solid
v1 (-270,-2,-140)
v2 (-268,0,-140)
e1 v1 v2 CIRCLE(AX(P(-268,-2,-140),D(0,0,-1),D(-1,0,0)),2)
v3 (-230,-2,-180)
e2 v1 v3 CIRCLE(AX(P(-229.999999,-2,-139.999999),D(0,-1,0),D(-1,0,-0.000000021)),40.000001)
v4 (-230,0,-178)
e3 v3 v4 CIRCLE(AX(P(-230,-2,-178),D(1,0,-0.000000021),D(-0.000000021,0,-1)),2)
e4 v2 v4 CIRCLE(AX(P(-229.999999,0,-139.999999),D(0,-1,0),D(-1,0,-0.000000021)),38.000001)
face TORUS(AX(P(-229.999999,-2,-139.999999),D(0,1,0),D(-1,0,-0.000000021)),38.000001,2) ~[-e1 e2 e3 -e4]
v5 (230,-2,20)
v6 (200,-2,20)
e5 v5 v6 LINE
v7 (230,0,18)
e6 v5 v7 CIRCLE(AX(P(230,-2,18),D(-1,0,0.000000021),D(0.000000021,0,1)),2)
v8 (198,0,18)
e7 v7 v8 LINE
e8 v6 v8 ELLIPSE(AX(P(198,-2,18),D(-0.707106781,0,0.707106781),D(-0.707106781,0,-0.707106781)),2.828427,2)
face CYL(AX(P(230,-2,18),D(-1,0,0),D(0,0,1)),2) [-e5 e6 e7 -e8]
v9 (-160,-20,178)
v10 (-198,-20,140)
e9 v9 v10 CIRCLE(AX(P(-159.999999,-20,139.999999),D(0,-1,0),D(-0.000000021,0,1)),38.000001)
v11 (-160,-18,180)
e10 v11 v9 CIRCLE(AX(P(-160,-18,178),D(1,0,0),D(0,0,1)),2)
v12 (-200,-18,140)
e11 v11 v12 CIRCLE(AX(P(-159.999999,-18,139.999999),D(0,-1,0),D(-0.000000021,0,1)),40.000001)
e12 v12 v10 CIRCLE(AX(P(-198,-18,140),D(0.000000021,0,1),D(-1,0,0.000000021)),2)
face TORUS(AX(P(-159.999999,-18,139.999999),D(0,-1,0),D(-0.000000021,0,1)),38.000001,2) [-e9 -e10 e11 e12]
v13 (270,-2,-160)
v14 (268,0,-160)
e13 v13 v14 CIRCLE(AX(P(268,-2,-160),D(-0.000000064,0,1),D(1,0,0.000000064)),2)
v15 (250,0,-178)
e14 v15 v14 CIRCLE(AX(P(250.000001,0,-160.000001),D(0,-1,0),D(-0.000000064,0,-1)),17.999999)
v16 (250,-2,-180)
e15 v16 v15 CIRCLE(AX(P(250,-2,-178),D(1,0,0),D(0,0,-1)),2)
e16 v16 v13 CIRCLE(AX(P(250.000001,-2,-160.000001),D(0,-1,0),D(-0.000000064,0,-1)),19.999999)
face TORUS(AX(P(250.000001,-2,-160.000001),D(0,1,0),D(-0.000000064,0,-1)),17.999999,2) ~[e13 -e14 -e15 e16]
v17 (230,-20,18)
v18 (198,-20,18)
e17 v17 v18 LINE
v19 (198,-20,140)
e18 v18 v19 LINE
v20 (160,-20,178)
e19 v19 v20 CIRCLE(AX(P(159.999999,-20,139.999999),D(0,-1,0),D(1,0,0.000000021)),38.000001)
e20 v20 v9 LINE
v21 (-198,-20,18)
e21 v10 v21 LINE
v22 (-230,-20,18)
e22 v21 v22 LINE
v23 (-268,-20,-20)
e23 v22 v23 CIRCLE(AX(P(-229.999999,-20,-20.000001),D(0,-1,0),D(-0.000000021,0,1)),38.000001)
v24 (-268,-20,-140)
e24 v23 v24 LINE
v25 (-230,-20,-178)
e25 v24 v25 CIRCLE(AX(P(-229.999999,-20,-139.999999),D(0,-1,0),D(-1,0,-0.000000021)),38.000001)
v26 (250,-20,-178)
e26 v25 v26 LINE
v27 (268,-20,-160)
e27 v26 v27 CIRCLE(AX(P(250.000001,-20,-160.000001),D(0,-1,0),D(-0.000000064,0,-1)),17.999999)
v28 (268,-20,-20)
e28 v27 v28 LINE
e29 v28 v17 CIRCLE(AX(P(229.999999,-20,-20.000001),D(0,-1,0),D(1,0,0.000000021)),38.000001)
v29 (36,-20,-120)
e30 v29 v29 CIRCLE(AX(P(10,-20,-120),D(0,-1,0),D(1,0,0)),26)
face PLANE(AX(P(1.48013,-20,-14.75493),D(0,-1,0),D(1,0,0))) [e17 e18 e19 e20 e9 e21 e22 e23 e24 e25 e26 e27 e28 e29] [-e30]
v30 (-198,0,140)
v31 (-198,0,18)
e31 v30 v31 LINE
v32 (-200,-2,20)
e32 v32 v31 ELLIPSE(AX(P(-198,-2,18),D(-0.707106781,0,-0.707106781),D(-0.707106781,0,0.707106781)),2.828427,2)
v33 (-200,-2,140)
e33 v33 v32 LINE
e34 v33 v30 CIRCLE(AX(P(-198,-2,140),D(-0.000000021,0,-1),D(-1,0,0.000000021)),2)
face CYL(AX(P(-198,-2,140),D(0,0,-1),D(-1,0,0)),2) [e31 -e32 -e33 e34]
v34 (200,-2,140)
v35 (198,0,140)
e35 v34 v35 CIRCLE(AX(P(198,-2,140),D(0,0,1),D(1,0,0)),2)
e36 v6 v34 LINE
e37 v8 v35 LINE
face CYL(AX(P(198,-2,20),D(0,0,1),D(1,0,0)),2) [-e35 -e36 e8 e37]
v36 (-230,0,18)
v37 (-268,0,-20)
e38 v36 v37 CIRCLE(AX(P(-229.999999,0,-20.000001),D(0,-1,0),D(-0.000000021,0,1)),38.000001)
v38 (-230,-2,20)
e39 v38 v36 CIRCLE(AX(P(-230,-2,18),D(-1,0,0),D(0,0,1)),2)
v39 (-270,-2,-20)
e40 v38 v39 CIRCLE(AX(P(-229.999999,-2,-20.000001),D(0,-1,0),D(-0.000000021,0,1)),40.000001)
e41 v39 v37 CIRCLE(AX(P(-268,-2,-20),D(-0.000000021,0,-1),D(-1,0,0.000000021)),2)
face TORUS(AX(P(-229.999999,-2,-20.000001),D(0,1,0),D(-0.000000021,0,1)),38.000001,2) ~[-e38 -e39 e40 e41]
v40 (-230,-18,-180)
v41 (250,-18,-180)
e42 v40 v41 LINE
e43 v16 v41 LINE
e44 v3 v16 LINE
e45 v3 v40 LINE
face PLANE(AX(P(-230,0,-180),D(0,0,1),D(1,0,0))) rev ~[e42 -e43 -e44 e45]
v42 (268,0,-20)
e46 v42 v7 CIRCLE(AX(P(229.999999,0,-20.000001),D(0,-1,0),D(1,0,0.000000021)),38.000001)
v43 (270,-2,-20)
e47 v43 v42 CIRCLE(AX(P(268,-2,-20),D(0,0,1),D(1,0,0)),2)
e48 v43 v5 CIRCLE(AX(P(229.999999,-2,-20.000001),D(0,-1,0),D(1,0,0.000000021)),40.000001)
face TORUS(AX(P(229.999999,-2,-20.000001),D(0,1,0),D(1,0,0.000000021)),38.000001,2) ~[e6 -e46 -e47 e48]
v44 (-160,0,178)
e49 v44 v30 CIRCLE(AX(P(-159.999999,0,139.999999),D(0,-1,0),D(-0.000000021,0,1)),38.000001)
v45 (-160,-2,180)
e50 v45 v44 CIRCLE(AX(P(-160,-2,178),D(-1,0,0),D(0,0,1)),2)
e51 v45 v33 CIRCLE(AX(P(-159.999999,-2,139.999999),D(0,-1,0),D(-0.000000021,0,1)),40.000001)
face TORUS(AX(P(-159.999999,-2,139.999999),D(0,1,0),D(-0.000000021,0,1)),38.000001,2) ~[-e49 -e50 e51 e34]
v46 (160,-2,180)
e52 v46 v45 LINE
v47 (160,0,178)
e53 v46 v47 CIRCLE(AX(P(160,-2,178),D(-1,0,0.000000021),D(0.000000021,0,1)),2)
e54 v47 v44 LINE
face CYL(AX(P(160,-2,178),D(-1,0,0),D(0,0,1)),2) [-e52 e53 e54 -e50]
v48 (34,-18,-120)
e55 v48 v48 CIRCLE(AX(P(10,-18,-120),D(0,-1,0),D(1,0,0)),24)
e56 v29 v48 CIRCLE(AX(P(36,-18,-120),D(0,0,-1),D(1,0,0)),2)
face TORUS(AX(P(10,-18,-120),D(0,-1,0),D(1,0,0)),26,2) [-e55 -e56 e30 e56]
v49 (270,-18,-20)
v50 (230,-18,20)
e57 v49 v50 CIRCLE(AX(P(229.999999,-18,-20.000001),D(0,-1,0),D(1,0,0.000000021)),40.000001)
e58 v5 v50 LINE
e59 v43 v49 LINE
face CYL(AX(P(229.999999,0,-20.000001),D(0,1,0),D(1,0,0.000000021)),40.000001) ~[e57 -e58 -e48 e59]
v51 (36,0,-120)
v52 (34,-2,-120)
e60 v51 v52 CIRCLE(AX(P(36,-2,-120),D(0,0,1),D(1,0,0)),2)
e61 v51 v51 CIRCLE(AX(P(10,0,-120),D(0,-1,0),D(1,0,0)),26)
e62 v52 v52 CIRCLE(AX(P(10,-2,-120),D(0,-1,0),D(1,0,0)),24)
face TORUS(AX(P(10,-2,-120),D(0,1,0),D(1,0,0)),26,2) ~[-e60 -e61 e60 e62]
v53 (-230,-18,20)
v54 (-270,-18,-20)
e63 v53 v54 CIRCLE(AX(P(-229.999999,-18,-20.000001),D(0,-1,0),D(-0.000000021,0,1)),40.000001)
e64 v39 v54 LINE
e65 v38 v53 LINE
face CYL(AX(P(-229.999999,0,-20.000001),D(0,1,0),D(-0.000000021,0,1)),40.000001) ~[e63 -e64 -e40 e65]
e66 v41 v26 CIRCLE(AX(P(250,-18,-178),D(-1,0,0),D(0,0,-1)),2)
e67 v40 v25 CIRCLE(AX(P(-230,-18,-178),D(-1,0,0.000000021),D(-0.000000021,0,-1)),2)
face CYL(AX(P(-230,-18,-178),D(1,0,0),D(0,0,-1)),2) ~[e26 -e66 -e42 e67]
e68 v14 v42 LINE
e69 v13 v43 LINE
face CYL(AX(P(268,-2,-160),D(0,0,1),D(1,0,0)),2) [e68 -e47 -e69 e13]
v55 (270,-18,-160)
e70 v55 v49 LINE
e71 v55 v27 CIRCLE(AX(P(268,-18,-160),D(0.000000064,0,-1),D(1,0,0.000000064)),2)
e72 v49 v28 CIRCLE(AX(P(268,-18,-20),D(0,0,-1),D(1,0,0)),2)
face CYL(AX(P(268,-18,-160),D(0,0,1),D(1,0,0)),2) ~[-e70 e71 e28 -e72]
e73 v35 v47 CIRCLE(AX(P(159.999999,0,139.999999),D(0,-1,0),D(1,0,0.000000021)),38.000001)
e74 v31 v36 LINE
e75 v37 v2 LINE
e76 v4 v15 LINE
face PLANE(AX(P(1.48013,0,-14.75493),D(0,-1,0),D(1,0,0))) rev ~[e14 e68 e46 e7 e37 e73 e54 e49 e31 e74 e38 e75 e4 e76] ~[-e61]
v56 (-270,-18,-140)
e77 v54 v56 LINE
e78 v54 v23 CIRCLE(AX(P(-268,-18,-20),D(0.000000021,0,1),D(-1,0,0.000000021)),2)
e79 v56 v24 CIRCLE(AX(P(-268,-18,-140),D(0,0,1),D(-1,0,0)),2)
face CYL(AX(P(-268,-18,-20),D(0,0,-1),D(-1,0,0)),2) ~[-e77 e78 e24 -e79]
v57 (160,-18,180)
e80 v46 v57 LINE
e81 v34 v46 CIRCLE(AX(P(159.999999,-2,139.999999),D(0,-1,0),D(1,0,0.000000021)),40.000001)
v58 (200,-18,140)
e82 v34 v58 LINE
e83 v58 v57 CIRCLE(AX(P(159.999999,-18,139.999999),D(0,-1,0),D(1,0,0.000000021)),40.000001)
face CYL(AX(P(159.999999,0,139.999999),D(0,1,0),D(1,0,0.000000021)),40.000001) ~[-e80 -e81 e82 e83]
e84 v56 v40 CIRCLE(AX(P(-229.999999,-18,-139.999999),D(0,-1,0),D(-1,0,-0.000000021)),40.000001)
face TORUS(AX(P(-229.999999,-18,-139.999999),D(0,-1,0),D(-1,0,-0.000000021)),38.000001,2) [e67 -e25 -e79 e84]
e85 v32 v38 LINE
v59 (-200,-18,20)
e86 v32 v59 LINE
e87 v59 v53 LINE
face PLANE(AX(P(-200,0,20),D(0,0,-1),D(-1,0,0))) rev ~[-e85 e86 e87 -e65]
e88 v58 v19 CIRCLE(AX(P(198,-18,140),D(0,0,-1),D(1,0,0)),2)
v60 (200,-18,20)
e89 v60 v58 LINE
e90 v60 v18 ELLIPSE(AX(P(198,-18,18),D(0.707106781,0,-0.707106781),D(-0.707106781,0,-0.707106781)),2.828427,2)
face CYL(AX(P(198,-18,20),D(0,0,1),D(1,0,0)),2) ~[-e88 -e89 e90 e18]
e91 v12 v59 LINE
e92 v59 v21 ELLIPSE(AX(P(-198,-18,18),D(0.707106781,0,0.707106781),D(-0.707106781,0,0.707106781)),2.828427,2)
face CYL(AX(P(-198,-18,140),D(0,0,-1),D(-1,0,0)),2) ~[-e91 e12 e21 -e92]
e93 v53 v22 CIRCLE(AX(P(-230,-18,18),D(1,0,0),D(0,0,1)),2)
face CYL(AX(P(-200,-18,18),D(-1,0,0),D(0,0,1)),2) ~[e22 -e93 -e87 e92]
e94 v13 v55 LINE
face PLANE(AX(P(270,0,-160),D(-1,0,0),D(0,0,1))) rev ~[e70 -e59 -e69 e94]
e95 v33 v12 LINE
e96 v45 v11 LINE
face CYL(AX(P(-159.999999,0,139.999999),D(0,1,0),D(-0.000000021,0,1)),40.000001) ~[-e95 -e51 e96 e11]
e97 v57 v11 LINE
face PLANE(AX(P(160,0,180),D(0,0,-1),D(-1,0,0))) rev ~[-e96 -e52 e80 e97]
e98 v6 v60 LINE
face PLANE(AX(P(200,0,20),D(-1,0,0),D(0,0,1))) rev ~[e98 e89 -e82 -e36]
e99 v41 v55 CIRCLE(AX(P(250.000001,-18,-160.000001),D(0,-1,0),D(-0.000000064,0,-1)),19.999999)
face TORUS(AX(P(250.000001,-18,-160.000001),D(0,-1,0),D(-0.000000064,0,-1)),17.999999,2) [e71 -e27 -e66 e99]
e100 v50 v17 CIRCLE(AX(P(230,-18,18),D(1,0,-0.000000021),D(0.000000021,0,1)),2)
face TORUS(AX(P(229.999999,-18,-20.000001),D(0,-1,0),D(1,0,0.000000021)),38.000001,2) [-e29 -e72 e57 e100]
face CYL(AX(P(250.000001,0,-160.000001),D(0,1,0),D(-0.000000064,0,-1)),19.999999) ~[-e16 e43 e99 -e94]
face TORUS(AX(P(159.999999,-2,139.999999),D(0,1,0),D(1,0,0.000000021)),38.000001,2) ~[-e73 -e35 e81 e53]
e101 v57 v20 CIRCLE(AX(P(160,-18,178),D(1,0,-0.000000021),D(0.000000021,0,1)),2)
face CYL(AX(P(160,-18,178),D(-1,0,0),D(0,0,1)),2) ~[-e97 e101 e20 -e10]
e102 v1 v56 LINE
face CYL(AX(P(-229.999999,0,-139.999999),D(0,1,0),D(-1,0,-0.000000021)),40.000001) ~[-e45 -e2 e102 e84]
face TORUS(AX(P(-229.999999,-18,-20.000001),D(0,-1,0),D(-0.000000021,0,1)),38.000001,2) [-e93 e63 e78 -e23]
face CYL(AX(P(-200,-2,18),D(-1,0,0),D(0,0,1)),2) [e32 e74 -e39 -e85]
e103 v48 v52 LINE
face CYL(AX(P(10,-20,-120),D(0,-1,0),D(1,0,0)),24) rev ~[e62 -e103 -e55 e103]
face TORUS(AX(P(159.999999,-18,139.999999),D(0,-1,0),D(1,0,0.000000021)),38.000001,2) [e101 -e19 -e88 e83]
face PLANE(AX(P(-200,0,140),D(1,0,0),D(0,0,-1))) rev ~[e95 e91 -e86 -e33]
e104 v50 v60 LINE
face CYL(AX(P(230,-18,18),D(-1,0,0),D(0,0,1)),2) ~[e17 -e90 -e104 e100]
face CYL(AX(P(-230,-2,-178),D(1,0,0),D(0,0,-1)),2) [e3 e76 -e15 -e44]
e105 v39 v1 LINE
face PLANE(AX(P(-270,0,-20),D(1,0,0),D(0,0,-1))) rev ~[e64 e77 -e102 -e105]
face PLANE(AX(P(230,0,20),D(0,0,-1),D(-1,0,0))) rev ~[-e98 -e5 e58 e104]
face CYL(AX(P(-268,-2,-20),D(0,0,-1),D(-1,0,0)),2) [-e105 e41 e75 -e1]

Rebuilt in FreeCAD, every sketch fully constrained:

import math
import FreeCAD as App
import Part
import Sketcher
from FreeCAD import Vector
Q = App.Units.Quantity


def edges_at(feature, points):
    """Names of the edges that pass closest to the given points."""
    edges = feature.Shape.Edges
    near = lambda p: min(range(len(edges)), key=lambda i: edges[i].distToShape(Part.Vertex(*p))[0])
    return sorted({f"Edge{near(p) + 1}" for p in points})

doc = App.newDocument("Part")
body = doc.addObject("PartDesign::Body", "Body")

# Sketch on XZ plane
sketch1 = doc.addObject("Sketcher::SketchObject", "Sketch")
body.addObject(sketch1)
sketch1.AttachmentSupport = (doc.XZ_Plane, [""])
sketch1.MapMode = "FlatFace"
sketch1.addGeometry(Part.LineSegment(Vector(-230, -180, 0), Vector(250, -180, 0)), False)
sketch1.addGeometry(Part.ArcOfCircle(Part.Circle(Vector(250, -160, 0), Vector(0, 0, 1), 20), math.radians(-90), math.radians(0)), False)
sketch1.addGeometry(Part.LineSegment(Vector(270, -160, 0), Vector(270, -20, 0)), False)
sketch1.addGeometry(Part.ArcOfCircle(Part.Circle(Vector(230, -20, 0), Vector(0, 0, 1), 40), math.radians(0), math.radians(90)), False)
sketch1.addGeometry(Part.LineSegment(Vector(230, 20, 0), Vector(200, 20, 0)), False)
sketch1.addGeometry(Part.LineSegment(Vector(200, 20, 0), Vector(200, 140, 0)), False)
sketch1.addGeometry(Part.ArcOfCircle(Part.Circle(Vector(160, 140, 0), Vector(0, 0, 1), 40), math.radians(0), math.radians(90)), False)
sketch1.addGeometry(Part.LineSegment(Vector(160, 180, 0), Vector(-160, 180, 0)), False)
sketch1.addGeometry(Part.ArcOfCircle(Part.Circle(Vector(-160, 140, 0), Vector(0, 0, 1), 40), math.radians(90), math.radians(180)), False)
sketch1.addGeometry(Part.LineSegment(Vector(-200, 140, 0), Vector(-200, 20, 0)), False)
sketch1.addGeometry(Part.LineSegment(Vector(-200, 20, 0), Vector(-230, 20, 0)), False)
sketch1.addGeometry(Part.ArcOfCircle(Part.Circle(Vector(-230, -20, 0), Vector(0, 0, 1), 40), math.radians(90), math.radians(180)), False)
sketch1.addGeometry(Part.LineSegment(Vector(-270, -20, 0), Vector(-270, -140, 0)), False)
sketch1.addGeometry(Part.ArcOfCircle(Part.Circle(Vector(-230, -140, 0), Vector(0, 0, 1), 40), math.radians(-180), math.radians(-90)), False)
sketch1.addConstraint(Sketcher.Constraint("Tangent", 0, 2, 1, 1))
sketch1.addConstraint(Sketcher.Constraint("Tangent", 1, 2, 2, 1))
sketch1.addConstraint(Sketcher.Constraint("Tangent", 2, 2, 3, 1))
sketch1.addConstraint(Sketcher.Constraint("Tangent", 3, 2, 4, 1))
sketch1.addConstraint(Sketcher.Constraint("Coincident", 4, 2, 5, 1))
sketch1.addConstraint(Sketcher.Constraint("Tangent", 5, 2, 6, 1))
sketch1.addConstraint(Sketcher.Constraint("Tangent", 6, 2, 7, 1))
sketch1.addConstraint(Sketcher.Constraint("Tangent", 7, 2, 8, 1))
sketch1.addConstraint(Sketcher.Constraint("Tangent", 8, 2, 9, 1))
sketch1.addConstraint(Sketcher.Constraint("Coincident", 9, 2, 10, 1))
sketch1.addConstraint(Sketcher.Constraint("Tangent", 10, 2, 11, 1))
sketch1.addConstraint(Sketcher.Constraint("Tangent", 11, 2, 12, 1))
sketch1.addConstraint(Sketcher.Constraint("Tangent", 12, 2, 13, 1))
sketch1.addConstraint(Sketcher.Constraint("Tangent", 13, 2, 0, 1))
sketch1.addConstraint(Sketcher.Constraint("Horizontal", 0))
sketch1.addConstraint(Sketcher.Constraint("Vertical", 2))
sketch1.addConstraint(Sketcher.Constraint("Horizontal", 4))
sketch1.addConstraint(Sketcher.Constraint("Vertical", 5))
sketch1.addConstraint(Sketcher.Constraint("Horizontal", 7))
sketch1.addConstraint(Sketcher.Constraint("Vertical", 9))
sketch1.addConstraint(Sketcher.Constraint("Horizontal", 10))
sketch1.addConstraint(Sketcher.Constraint("Vertical", 12))
sketch1.addConstraint(Sketcher.Constraint("Equal", 3, 6))
sketch1.addConstraint(Sketcher.Constraint("Equal", 6, 8))
sketch1.addConstraint(Sketcher.Constraint("Equal", 8, 11))
sketch1.addConstraint(Sketcher.Constraint("Equal", 11, 13))
sketch1.addConstraint(Sketcher.Constraint("Symmetric", 3, 3, 11, 3, -2))
sketch1.addConstraint(Sketcher.Constraint("Equal", 4, 10))
sketch1.addConstraint(Sketcher.Constraint("Equal", 9, 12))
sketch1.addConstraint(Sketcher.Constraint("Radius", 1, Q("19.999999 mm")))
sketch1.addConstraint(Sketcher.Constraint("Radius", 3, Q("40.000001 mm")))
sketch1.addConstraint(Sketcher.Constraint("DistanceX", 0, 1, 0, 2, Q("480 mm")))
sketch1.addConstraint(Sketcher.Constraint("DistanceX", 4, 2, 4, 1, Q("30 mm")))
sketch1.addConstraint(Sketcher.Constraint("DistanceY", 2, 1, 2, 2, Q("140 mm")))
sketch1.addConstraint(Sketcher.Constraint("DistanceY", 1, 3, -1, 1, Q("160.000001 mm")))
pad1 = doc.addObject("PartDesign::Pad", "Pad")
body.addObject(pad1)
pad1.Profile = sketch1
pad1.Length = 20
doc.recompute()

fillet = doc.addObject("PartDesign::Fillet", "Fillet")
body.addObject(fillet)
fillet.Base = (pad1, edges_at(pad1, [
    (10, -20, -180),
    (264.142, -20, -174.142),
    (270, -20, -90),
    (258.284, -20, 8.284),
    (215, -20, 20),
    (200, -20, 80),
    (188.284, -20, 168.284),
    (0, -20, 180),
    (-188.284, -20, 168.284),
    (-200, -20, 80),
    (-215, -20, 20),
    (-258.284, -20, 8.284),
    (-270, -20, -80),
    (-258.284, -20, -168.284),
    (10, 0, -180),
    (264.142, 0, -174.142),
    (270, 0, -90),
    (258.284, 0, 8.284),
    (215, 0, 20),
    (200, 0, 80),
    (188.284, 0, 168.284),
    (0, 0, 180),
    (-188.284, 0, 168.284),
    (-200, 0, 80),
    (-215, 0, 20),
    (-258.284, 0, 8.284),
    (-270, 0, -80),
    (-258.284, 0, -168.284),
]))
fillet.Radius = 2

# Sketch on XZ plane
sketch2 = doc.addObject("Sketcher::SketchObject", "Sketch001")
body.addObject(sketch2)
sketch2.AttachmentSupport = (doc.XZ_Plane, [""])
sketch2.MapMode = "FlatFace"
sketch2.AttachmentOffset = App.Placement(Vector(0, 0, 20), App.Rotation())
sketch2.addGeometry(Part.Circle(Vector(10, -120, 0), Vector(0, 0, 1), 24), False)
sketch2.addConstraint(Sketcher.Constraint("Diameter", 0, Q("48 mm")))
sketch2.addConstraint(Sketcher.Constraint("DistanceX", -1, 1, 0, 3, Q("10 mm")))
sketch2.addConstraint(Sketcher.Constraint("DistanceY", 0, 3, -1, 1, Q("120 mm")))
pocket1 = doc.addObject("PartDesign::Pocket", "Pocket")
body.addObject(pocket1)
pocket1.Profile = sketch2
pocket1.Length = 25
doc.recompute()

fillet2 = doc.addObject("PartDesign::Fillet", "Fillet001")
body.addObject(fillet2)
fillet2.Base = (pocket1, edges_at(pocket1, [(-14, -20, -120), (-14, 0, -120)]))
fillet2.Radius = 2

doc.recompute()
